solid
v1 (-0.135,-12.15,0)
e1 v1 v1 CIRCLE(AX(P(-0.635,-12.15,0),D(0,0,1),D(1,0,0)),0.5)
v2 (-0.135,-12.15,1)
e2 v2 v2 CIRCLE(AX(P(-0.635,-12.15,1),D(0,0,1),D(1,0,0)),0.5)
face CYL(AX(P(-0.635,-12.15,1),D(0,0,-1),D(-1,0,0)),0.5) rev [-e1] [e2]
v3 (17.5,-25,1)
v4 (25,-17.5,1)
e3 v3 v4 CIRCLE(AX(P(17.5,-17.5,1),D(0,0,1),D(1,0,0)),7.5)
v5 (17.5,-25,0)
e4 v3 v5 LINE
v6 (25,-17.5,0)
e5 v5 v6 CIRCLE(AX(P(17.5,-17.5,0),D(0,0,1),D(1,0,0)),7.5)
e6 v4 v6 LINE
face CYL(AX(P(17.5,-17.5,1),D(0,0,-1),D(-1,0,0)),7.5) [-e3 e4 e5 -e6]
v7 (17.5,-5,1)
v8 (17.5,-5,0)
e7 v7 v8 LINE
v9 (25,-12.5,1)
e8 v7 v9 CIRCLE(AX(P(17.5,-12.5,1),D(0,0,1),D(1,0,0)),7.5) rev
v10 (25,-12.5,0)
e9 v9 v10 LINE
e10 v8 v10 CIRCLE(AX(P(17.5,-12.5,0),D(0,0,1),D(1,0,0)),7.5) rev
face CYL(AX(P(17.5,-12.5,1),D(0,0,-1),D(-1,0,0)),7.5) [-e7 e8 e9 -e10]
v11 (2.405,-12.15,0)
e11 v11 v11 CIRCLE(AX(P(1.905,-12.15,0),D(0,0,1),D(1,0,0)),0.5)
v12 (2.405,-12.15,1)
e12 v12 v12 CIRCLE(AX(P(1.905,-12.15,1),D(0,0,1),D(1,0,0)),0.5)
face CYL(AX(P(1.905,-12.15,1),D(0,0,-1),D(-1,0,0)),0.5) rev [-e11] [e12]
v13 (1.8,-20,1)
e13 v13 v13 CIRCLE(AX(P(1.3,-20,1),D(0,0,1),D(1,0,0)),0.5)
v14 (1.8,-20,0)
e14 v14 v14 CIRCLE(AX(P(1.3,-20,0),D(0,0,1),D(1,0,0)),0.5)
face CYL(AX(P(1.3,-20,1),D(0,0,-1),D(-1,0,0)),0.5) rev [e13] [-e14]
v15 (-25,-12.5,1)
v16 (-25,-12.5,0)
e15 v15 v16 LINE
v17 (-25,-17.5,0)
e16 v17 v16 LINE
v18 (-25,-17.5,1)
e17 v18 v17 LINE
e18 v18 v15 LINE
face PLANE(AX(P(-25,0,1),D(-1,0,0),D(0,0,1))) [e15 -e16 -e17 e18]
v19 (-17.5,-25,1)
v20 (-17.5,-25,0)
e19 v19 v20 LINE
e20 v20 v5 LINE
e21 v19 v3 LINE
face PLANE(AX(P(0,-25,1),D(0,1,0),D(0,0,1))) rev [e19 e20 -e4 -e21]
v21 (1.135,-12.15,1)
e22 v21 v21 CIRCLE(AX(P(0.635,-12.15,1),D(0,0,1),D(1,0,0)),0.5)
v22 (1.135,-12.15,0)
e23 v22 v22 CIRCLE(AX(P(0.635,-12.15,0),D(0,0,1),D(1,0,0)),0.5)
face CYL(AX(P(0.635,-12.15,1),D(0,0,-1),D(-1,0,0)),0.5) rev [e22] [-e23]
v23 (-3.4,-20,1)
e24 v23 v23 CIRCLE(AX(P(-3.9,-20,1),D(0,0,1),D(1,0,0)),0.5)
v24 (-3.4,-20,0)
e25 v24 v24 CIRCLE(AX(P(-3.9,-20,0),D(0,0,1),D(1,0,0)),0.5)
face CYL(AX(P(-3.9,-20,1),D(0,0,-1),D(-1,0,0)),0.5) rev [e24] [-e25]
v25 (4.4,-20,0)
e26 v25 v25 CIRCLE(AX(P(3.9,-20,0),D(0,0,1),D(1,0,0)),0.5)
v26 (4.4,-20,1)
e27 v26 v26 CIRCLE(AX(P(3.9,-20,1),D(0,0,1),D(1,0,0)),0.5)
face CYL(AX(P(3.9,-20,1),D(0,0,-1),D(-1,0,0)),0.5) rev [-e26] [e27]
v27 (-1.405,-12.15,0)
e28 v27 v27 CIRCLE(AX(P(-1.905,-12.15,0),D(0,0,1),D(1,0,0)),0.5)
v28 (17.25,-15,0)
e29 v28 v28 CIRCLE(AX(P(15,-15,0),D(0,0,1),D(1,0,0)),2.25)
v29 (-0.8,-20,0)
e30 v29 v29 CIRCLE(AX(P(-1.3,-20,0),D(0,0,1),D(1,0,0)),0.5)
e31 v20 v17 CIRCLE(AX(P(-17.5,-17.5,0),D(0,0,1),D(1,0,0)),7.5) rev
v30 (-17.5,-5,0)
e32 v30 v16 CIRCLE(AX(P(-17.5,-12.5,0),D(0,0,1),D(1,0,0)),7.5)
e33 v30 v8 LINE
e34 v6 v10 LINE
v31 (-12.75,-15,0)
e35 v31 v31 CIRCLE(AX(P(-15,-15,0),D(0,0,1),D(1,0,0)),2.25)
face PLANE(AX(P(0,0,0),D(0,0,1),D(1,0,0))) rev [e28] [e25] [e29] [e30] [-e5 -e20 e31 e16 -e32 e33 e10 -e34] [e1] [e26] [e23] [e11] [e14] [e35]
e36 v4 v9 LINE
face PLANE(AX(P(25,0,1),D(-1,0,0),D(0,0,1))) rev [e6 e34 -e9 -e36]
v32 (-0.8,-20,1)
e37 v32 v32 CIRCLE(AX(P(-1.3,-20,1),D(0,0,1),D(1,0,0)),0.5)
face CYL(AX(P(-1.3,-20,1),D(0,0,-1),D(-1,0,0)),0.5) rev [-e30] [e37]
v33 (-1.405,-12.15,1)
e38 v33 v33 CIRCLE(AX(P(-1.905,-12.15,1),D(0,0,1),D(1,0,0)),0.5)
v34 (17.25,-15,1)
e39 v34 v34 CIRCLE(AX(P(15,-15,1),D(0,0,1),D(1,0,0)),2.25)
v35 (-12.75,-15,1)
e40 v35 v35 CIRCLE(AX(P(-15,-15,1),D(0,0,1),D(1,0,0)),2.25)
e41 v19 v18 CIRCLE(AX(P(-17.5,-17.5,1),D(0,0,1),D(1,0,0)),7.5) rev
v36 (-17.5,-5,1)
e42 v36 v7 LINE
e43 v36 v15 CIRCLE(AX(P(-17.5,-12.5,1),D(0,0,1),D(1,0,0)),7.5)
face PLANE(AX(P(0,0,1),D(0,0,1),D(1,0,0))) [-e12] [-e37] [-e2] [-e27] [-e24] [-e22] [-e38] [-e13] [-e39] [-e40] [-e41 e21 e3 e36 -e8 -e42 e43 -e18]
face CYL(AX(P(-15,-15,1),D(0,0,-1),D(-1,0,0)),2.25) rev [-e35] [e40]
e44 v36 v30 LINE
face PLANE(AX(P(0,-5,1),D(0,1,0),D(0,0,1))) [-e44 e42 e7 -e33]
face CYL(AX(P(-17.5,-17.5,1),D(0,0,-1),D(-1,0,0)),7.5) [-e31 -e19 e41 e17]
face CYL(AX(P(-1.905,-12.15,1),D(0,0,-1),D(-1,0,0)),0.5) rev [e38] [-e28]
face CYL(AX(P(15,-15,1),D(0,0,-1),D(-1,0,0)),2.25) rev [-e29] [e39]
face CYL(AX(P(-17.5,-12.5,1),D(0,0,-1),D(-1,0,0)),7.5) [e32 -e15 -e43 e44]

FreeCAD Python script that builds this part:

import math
import FreeCAD as App
import Part
import Sketcher

doc = App.newDocument("Part")
params = doc.addObject("Spreadsheet::Sheet", "Params")
for row, (alias, value) in enumerate([
    ("sketch1_diameter", "1 mm"),
    ("sketch1_diameter2", "4.5 mm"),
    ("sketch1_radius", "7.5 mm"),
    ("sketch1_width", "35 mm"),
    ("sketch1_height", "5 mm"),
    ("pad1_length", "1 mm"),
], start=1):
    params.set(f"A{row}", alias)
    params.set(f"B{row}", "=" + value)
    params.setAlias(f"B{row}", alias)

body = doc.addObject("PartDesign::Body", "Body")

sketch1 = body.newObject("Sketcher::SketchObject", "Sketch")
sketch1.AttachmentSupport = (doc.getObject("XY_Plane"), [""])
sketch1.MapMode = "FlatFace"
sketch1.addGeometry([
    Part.LineSegment(App.Vector(17.5, -5, 0), App.Vector(-17.5, -5, 0)),
    Part.ArcOfCircle(Part.Circle(App.Vector(-17.5, -12.5, 0), App.Vector(0, 0, 1), 7.5), math.radians(90), math.radians(180)),
    Part.LineSegment(App.Vector(-25, -12.5, 0), App.Vector(-25, -17.5, 0)),
    Part.ArcOfCircle(Part.Circle(App.Vector(-17.5, -17.5, 0), App.Vector(0, 0, 1), 7.5), math.radians(180), math.radians(270)),
    Part.LineSegment(App.Vector(-17.5, -25, 0), App.Vector(17.5, -25, 0)),
    Part.ArcOfCircle(Part.Circle(App.Vector(17.5, -17.5, 0), App.Vector(0, 0, 1), 7.5), math.radians(-90), math.radians(0)),
    Part.LineSegment(App.Vector(25, -17.5, 0), App.Vector(25, -12.5, 0)),
    Part.ArcOfCircle(Part.Circle(App.Vector(17.5, -12.5, 0), App.Vector(0, 0, 1), 7.5), math.radians(0), math.radians(90)),
    Part.Circle(App.Vector(3.9, -20, 0), App.Vector(0, 0, 1), 0.5),
    Part.Circle(App.Vector(1.3, -20, 0), App.Vector(0, 0, 1), 0.5),
    Part.Circle(App.Vector(-1.3, -20, 0), App.Vector(0, 0, 1), 0.5),
    Part.Circle(App.Vector(-3.9, -20, 0), App.Vector(0, 0, 1), 0.5),
    Part.Circle(App.Vector(15, -15, 0), App.Vector(0, 0, 1), 2.2),
    Part.Circle(App.Vector(1.9, -12.2, 0), App.Vector(0, 0, 1), 0.5),
    Part.Circle(App.Vector(0.6, -12.2, 0), App.Vector(0, 0, 1), 0.5),
    Part.Circle(App.Vector(-15, -15, 0), App.Vector(0, 0, 1), 2.2),
    Part.Circle(App.Vector(-0.6, -12.2, 0), App.Vector(0, 0, 1), 0.5),
    Part.Circle(App.Vector(-1.9, -12.2, 0), App.Vector(0, 0, 1), 0.5),
], False)
sketch1.addConstraint([
    Sketcher.Constraint("Tangent", 0, 2, 1, 1),
    Sketcher.Constraint("Tangent", 1, 2, 2, 1),
    Sketcher.Constraint("Tangent", 2, 2, 3, 1),
    Sketcher.Constraint("Tangent", 3, 2, 4, 1),
    Sketcher.Constraint("Tangent", 4, 2, 5, 1),
    Sketcher.Constraint("Tangent", 5, 2, 6, 1),
    Sketcher.Constraint("Tangent", 6, 2, 7, 1),
    Sketcher.Constraint("Tangent", 7, 2, 0, 1),
    Sketcher.Constraint("Horizontal", 0),
    Sketcher.Constraint("Vertical", 2),
    Sketcher.Constraint("Horizontal", 4),
    Sketcher.Constraint("Vertical", 6),
    Sketcher.Constraint("Equal", 1, 3),
    Sketcher.Constraint("Equal", 3, 5),
    Sketcher.Constraint("Equal", 5, 7),
    Sketcher.Constraint("Equal", 8, 9),
    Sketcher.Constraint("Equal", 9, 10),
    Sketcher.Constraint("Equal", 10, 11),
    Sketcher.Constraint("Equal", 11, 13),
    Sketcher.Constraint("Equal", 13, 14),
    Sketcher.Constraint("Equal", 12, 15),
    Sketcher.Constraint("Equal", 14, 16),
    Sketcher.Constraint("Equal", 16, 17),
    Sketcher.Constraint("Symmetric", 9, 3, 10, 3, -2),
    Sketcher.Constraint("Symmetric", 8, 3, 11, 3, -2),
    Sketcher.Constraint("Symmetric", 12, 3, 15, 3, -2),
    Sketcher.Constraint("Symmetric", 14, 3, 16, 3, -2),
    Sketcher.Constraint("Symmetric", 13, 3, 17, 3, -2),
    Sketcher.Constraint("Horizontal", 8, 3, 9, 3),
    Sketcher.Constraint("Horizontal", 13, 3, 14, 3),
    Sketcher.Constraint("Diameter", 8, 1.0),
    Sketcher.Constraint("Diameter", 12, 4.5),
    Sketcher.Constraint("Radius", 1, 7.5),
    Sketcher.Constraint("DistanceX", 0, 2, 0, 1, 35.0),
    Sketcher.Constraint("DistanceY", 2, 2, 2, 1, 5.0),
    Sketcher.Constraint("DistanceY", 8, 3, -1, 1, 20.0),
    Sketcher.Constraint("DistanceX", -1, 1, 12, 3, 15.0),
    Sketcher.Constraint("DistanceY", 12, 3, -1, 1, 15.0),
    Sketcher.Constraint("DistanceY", 0, 2, -1, 1, 5.0),
    Sketcher.Constraint("DistanceX", 1, 2, -1, 1, 25.0),
    Sketcher.Constraint("DistanceX", -1, 1, 8, 3, 3.9),
    Sketcher.Constraint("DistanceX", -1, 1, 9, 3, 1.3),
    Sketcher.Constraint("DistanceY", 13, 3, -1, 1, 12.15),
    Sketcher.Constraint("DistanceX", 14, 3, 13, 3, 1.27),
    Sketcher.Constraint("DistanceX", 16, 3, 14, 3, 1.27),
])
sketch1.setExpression("Constraints[30]", "Params.sketch1_diameter")
sketch1.setExpression("Constraints[31]", "Params.sketch1_diameter2")
sketch1.setExpression("Constraints[32]", "Params.sketch1_radius")
sketch1.setExpression("Constraints[33]", "Params.sketch1_width")
sketch1.setExpression("Constraints[34]", "Params.sketch1_height")
pad1 = body.newObject("PartDesign::Pad", "Pad")
pad1.Profile = sketch1
pad1.setExpression("Length", "Params.pad1_length")

doc.recompute()
